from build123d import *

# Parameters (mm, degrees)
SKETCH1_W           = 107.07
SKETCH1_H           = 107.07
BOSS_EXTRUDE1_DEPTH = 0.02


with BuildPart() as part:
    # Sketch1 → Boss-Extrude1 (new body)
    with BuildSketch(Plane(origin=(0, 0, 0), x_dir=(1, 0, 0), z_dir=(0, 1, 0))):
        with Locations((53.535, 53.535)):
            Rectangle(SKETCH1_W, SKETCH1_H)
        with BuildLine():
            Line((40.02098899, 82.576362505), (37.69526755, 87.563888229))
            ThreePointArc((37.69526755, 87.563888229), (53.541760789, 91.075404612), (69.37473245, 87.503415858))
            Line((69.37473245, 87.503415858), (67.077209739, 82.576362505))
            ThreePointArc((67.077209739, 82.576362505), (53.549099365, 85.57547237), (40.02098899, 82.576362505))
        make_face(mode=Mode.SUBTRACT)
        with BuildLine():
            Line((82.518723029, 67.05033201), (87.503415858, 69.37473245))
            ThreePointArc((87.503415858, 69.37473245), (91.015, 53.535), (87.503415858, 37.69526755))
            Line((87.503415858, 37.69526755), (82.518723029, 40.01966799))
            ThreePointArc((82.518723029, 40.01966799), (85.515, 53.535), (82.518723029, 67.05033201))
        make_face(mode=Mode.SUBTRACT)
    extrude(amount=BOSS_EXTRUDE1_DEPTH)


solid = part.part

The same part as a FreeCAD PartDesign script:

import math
import FreeCAD as App
import Part
import Sketcher
from FreeCAD import Vector
Q = App.Units.Quantity


def add_polygon(sketch, points):
    """Adds a closed chain of lines whose ends are joined by coincident constraints."""
    first, n = sketch.GeometryCount, len(points)
    for a, b in zip(points, points[1:] + points[:1]):
        sketch.addGeometry(Part.LineSegment(App.Vector(*a, 0), App.Vector(*b, 0)), False)
    for i in range(n):
        sketch.addConstraint(Sketcher.Constraint("Coincident", first + i, 2, first + (i + 1) % n, 1))

doc = App.newDocument("Part")
body = doc.addObject("PartDesign::Body", "Body")

# Sketch on XZ plane
sketch1 = doc.addObject("Sketcher::SketchObject", "Sketch")
body.addObject(sketch1)
sketch1.AttachmentSupport = (doc.XZ_Plane, [""])
sketch1.MapMode = "FlatFace"
add_polygon(sketch1, [(0, -107), (0, 0), (107, 0), (107, -107)])  # lines 0-3
sketch1.addGeometry(Part.ArcOfCircle(Part.Circle(Vector(54, -54, 0), Vector(0, 0, 1), 32), math.radians(-25), math.radians(25)), False)  # 4
sketch1.addGeometry(Part.LineSegment(Vector(83, -67, 0), Vector(88, -69, 0)), False)  # 5
sketch1.addGeometry(Part.ArcOfCircle(Part.Circle(Vector(54, -54, 0), Vector(0, 0, 1), 37), math.radians(-25), math.radians(25)), False)  # 6
sketch1.addGeometry(Part.LineSegment(Vector(88, -38, 0), Vector(83, -40, 0)), False)  # 7
sketch1.addGeometry(Part.ArcOfCircle(Part.Circle(Vector(54, -54, 0), Vector(0, 0, 1), 32), math.radians(-115), math.radians(-65)), False)  # 8
sketch1.addGeometry(Part.LineSegment(Vector(40, -83, 0), Vector(38, -88, 0)), False)  # 9
sketch1.addGeometry(Part.ArcOfCircle(Part.Circle(Vector(53, -54, 0), Vector(0, 0, 1), 37), math.radians(-115), math.radians(-65)), False)  # 10
sketch1.addGeometry(Part.LineSegment(Vector(69, -88, 0), Vector(67, -83, 0)), False)  # 11
sketch1.addConstraint([
    Sketcher.Constraint("Coincident", 4, 1, 5, 1),
    Sketcher.Constraint("Coincident", 5, 2, 6, 1),
    Sketcher.Constraint("Coincident", 6, 2, 7, 1),
    Sketcher.Constraint("Coincident", 7, 2, 4, 2),
    Sketcher.Constraint("Coincident", 8, 1, 9, 1),
    Sketcher.Constraint("Coincident", 9, 2, 10, 1),
    Sketcher.Constraint("Coincident", 10, 2, 11, 1),
    Sketcher.Constraint("Coincident", 11, 2, 8, 2),
    Sketcher.Constraint("Vertical", 0),
    Sketcher.Constraint("Horizontal", 1),
    Sketcher.Constraint("Vertical", 2),
    Sketcher.Constraint("Horizontal", 3),
    Sketcher.Constraint("Coincident", 0, 2, -1, 1),
    Sketcher.Constraint("Coincident", 6, 3, 4, 3),
    Sketcher.Constraint("Perpendicular", 5, 9),
    Sketcher.Constraint("Perpendicular", 7, 11),
    Sketcher.Constraint("Horizontal", 8, 1, 11, 2),
    Sketcher.Constraint("Vertical", 5, 2, 6, 2),
    Sketcher.Constraint("Vertical", 4, 1, 7, 2),
    Sketcher.Constraint("Equal", 3, 0),
    Sketcher.Constraint("Angle", 5, Q("-25 deg")),
    Sketcher.Constraint("Radius", 4, Q("31.98 mm")),
    Sketcher.Constraint("Radius", 6, Q("37.48 mm")),
    Sketcher.Constraint("DistanceX", 1, 1, 1, 2, Q("107.07 mm")),
    Sketcher.Constraint("DistanceX", -1, 1, 4, 3, Q("53.535 mm")),
    Sketcher.Constraint("DistanceY", 4, 3, -1, 1, Q("53.535 mm")),
    Sketcher.Constraint("Radius", 8, Q("32.010236 mm")),
    Sketcher.Constraint("Radius", 10, Q("37.190855 mm")),
    Sketcher.Constraint("Distance", 11, Q("5.436402 mm")),
    Sketcher.Constraint("DistanceX", -1, 1, 8, 3, Q("53.549099 mm")),
    Sketcher.Constraint("DistanceX", 9, 2, 10, 3, Q("15.7755 mm")),
    Sketcher.Constraint("DistanceY", 10, 2, 10, 3, Q("33.618799 mm")),
    Sketcher.Constraint("DistanceY", 9, 2, -1, 1, Q("87.563888 mm")),
    Sketcher.Constraint("DistanceY", 8, 3, 6, 2, Q("15.869969 mm")),
])
pad1 = doc.addObject("PartDesign::Pad", "Pad")
body.addObject(pad1)
pad1.Profile = sketch1
pad1.Length = 0.02
pad1.Reversed = True

doc.recompute()
